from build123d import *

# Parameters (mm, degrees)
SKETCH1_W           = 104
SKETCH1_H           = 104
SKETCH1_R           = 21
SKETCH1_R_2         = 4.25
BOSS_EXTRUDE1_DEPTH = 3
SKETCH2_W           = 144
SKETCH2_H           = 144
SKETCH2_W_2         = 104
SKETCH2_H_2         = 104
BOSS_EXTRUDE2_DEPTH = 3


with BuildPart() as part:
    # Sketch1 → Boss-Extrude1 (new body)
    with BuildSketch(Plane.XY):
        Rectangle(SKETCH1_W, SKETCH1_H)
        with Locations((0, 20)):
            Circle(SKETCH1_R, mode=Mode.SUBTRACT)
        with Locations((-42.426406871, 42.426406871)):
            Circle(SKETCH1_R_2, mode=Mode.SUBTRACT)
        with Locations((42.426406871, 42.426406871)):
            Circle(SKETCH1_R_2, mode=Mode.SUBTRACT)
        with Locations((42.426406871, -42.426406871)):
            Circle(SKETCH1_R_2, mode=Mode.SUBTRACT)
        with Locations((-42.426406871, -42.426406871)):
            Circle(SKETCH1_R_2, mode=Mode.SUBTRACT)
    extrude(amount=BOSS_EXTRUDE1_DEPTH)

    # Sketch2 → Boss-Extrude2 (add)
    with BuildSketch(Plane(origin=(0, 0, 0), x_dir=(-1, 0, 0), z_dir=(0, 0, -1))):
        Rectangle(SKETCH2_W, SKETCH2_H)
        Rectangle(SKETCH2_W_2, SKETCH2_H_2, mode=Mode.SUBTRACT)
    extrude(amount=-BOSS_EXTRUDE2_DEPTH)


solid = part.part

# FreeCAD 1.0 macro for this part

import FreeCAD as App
import Part
import Sketcher

V = App.Vector
Q = App.Units.Quantity

doc = App.newDocument("Part")
body = doc.addObject("PartDesign::Body", "Body")

# Sketch on XY plane
sketch1 = doc.addObject("Sketcher::SketchObject", "Sketch")
body.addObject(sketch1)
sketch1.AttachmentSupport = (doc.XY_Plane, [""])
sketch1.MapMode = "FlatFace"
sketch1.addGeometry([
    Part.LineSegment(V(-52, 52, 0), V(-52, -52, 0)),  # 0
    Part.LineSegment(V(-52, -52, 0), V(52, -52, 0)),  # 1
    Part.LineSegment(V(52, -52, 0), V(52, 52, 0)),  # 2
    Part.LineSegment(V(52, 52, 0), V(-52, 52, 0)),  # 3
    Part.Circle(V(-42.4, -42.4, 0), V(0, 0, 1), 4.2),  # 4
    Part.Circle(V(42.4, -42.4, 0), V(0, 0, 1), 4.2),  # 5
    Part.Circle(V(-42.4, 42.4, 0), V(0, 0, 1), 4.2),  # 6
    Part.Circle(V(0, 20, 0), V(0, 0, 1), 21),  # 7
    Part.Circle(V(42.4, 42.4, 0), V(0, 0, 1), 4.2),  # 8
], False)
sketch1.addConstraint([
    Sketcher.Constraint("Coincident", 0, 2, 1, 1),
    Sketcher.Constraint("Coincident", 1, 2, 2, 1),
    Sketcher.Constraint("Coincident", 2, 2, 3, 1),
    Sketcher.Constraint("Coincident", 3, 2, 0, 1),
    Sketcher.Constraint("Vertical", 0),
    Sketcher.Constraint("Horizontal", 1),
    Sketcher.Constraint("Vertical", 2),
    Sketcher.Constraint("Horizontal", 3),
    Sketcher.Constraint("Equal", 4, 5),
    Sketcher.Constraint("Equal", 5, 6),
    Sketcher.Constraint("Equal", 6, 8),
    Sketcher.Constraint("Symmetric", 5, 3, 6, 3, -1, 1),
    Sketcher.Constraint("Symmetric", 4, 3, 8, 3, -1, 1),
    Sketcher.Constraint("Symmetric", 0, 2, 2, 2, -1, 1),
    Sketcher.Constraint("Symmetric", 4, 3, 5, 3, -2),
    Sketcher.Constraint("PointOnObject", 7, 3, -2),
    Sketcher.Constraint("Equal", 3, 0),
    Sketcher.Constraint("Diameter", 7, Q("42 mm")),
    Sketcher.Constraint("Diameter", 4, Q("8.5 mm")),
    Sketcher.Constraint("DistanceX", 1, 1, 1, 2, Q("104 mm")),
    Sketcher.Constraint("DistanceY", -1, 1, 7, 3, Q("20 mm")),
    Sketcher.Constraint("DistanceX", 4, 3, -1, 1, Q("42.426407 mm")),
    Sketcher.Constraint("DistanceY", 4, 3, -1, 1, Q("42.426407 mm")),
])
pad1 = doc.addObject("PartDesign::Pad", "Pad")
body.addObject(pad1)
pad1.Profile = sketch1
pad1.Length = 3

# Sketch on XY plane
sketch2 = doc.addObject("Sketcher::SketchObject", "Sketch001")
body.addObject(sketch2)
sketch2.AttachmentSupport = (doc.XY_Plane, [""])
sketch2.MapMode = "FlatFace"
sketch2.addGeometry([
    Part.LineSegment(V(72, 72, 0), V(72, -72, 0)),  # 0
    Part.LineSegment(V(72, -72, 0), V(-72, -72, 0)),  # 1
    Part.LineSegment(V(-72, -72, 0), V(-72, 72, 0)),  # 2
    Part.LineSegment(V(-72, 72, 0), V(72, 72, 0)),  # 3
    Part.LineSegment(V(-52, -52, 0), V(52, -52, 0)),  # 4
    Part.LineSegment(V(52, -52, 0), V(52, 52, 0)),  # 5
    Part.LineSegment(V(52, 52, 0), V(-52, 52, 0)),  # 6
    Part.LineSegment(V(-52, 52, 0), V(-52, -52, 0)),  # 7
], False)
sketch2.addConstraint([
    Sketcher.Constraint("Coincident", 0, 2, 1, 1),
    Sketcher.Constraint("Coincident", 1, 2, 2, 1),
    Sketcher.Constraint("Coincident", 2, 2, 3, 1),
    Sketcher.Constraint("Coincident", 3, 2, 0, 1),
    Sketcher.Constraint("Coincident", 4, 2, 5, 1),
    Sketcher.Constraint("Coincident", 5, 2, 6, 1),
    Sketcher.Constraint("Coincident", 6, 2, 7, 1),
    Sketcher.Constraint("Coincident", 7, 2, 4, 1),
    Sketcher.Constraint("Vertical", 0),
    Sketcher.Constraint("Horizontal", 1),
    Sketcher.Constraint("Vertical", 2),
    Sketcher.Constraint("Horizontal", 3),
    Sketcher.Constraint("Horizontal", 4),
    Sketcher.Constraint("Vertical", 5),
    Sketcher.Constraint("Horizontal", 6),
    Sketcher.Constraint("Vertical", 7),
    Sketcher.Constraint("Symmetric", 0, 2, 2, 2, -1, 1),
    Sketcher.Constraint("Symmetric", 4, 2, 6, 2, -1, 1),
    Sketcher.Constraint("Equal", 3, 0),
    Sketcher.Constraint("Equal", 6, 5),
    Sketcher.Constraint("DistanceX", 1, 2, 1, 1, Q("144 mm")),
    Sketcher.Constraint("DistanceX", 4, 1, 4, 2, Q("104 mm")),
])
pad2 = doc.addObject("PartDesign::Pad", "Pad001")
body.addObject(pad2)
pad2.Profile = sketch2
pad2.Length = 3

doc.recompute()
